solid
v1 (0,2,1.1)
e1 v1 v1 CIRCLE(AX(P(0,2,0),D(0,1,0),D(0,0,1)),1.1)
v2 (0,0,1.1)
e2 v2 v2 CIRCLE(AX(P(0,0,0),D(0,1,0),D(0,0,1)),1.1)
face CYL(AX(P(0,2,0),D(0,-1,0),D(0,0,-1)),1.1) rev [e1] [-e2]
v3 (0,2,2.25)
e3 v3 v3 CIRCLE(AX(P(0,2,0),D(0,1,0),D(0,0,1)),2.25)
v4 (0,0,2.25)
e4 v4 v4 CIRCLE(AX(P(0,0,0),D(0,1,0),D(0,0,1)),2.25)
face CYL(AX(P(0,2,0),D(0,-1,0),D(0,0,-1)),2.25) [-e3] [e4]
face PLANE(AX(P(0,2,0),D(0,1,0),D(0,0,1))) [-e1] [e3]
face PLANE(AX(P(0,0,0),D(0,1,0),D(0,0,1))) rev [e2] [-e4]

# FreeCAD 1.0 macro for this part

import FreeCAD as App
import Part
import Sketcher
from FreeCAD import Vector

doc = App.newDocument("Part")
body = doc.addObject("PartDesign::Body", "Body")

# Sketch on XZ plane
sketch1 = doc.addObject("Sketcher::SketchObject", "Sketch")
body.addObject(sketch1)
sketch1.AttachmentSupport = (doc.XZ_Plane, [""])
sketch1.MapMode = "FlatFace"
sketch1.addGeometry(Part.Circle(Vector(0, 0, 0), Vector(0, 0, 1), 2.2), False)
sketch1.addGeometry(Part.Circle(Vector(0, 0, 0), Vector(0, 0, 1), 1.1), False)
sketch1.addConstraint(Sketcher.Constraint("Coincident", 0, 3, -1, 1))
sketch1.addConstraint(Sketcher.Constraint("Coincident", 1, 3, -1, 1))
sketch1.addConstraint(Sketcher.Constraint("Diameter", 0, 4.5))
sketch1.addConstraint(Sketcher.Constraint("Diameter", 1, 2.2))
pad1 = doc.addObject("PartDesign::Pad", "Pad")
body.addObject(pad1)
pad1.Profile = sketch1
pad1.Length = 2
pad1.Reversed = True

doc.recompute()
